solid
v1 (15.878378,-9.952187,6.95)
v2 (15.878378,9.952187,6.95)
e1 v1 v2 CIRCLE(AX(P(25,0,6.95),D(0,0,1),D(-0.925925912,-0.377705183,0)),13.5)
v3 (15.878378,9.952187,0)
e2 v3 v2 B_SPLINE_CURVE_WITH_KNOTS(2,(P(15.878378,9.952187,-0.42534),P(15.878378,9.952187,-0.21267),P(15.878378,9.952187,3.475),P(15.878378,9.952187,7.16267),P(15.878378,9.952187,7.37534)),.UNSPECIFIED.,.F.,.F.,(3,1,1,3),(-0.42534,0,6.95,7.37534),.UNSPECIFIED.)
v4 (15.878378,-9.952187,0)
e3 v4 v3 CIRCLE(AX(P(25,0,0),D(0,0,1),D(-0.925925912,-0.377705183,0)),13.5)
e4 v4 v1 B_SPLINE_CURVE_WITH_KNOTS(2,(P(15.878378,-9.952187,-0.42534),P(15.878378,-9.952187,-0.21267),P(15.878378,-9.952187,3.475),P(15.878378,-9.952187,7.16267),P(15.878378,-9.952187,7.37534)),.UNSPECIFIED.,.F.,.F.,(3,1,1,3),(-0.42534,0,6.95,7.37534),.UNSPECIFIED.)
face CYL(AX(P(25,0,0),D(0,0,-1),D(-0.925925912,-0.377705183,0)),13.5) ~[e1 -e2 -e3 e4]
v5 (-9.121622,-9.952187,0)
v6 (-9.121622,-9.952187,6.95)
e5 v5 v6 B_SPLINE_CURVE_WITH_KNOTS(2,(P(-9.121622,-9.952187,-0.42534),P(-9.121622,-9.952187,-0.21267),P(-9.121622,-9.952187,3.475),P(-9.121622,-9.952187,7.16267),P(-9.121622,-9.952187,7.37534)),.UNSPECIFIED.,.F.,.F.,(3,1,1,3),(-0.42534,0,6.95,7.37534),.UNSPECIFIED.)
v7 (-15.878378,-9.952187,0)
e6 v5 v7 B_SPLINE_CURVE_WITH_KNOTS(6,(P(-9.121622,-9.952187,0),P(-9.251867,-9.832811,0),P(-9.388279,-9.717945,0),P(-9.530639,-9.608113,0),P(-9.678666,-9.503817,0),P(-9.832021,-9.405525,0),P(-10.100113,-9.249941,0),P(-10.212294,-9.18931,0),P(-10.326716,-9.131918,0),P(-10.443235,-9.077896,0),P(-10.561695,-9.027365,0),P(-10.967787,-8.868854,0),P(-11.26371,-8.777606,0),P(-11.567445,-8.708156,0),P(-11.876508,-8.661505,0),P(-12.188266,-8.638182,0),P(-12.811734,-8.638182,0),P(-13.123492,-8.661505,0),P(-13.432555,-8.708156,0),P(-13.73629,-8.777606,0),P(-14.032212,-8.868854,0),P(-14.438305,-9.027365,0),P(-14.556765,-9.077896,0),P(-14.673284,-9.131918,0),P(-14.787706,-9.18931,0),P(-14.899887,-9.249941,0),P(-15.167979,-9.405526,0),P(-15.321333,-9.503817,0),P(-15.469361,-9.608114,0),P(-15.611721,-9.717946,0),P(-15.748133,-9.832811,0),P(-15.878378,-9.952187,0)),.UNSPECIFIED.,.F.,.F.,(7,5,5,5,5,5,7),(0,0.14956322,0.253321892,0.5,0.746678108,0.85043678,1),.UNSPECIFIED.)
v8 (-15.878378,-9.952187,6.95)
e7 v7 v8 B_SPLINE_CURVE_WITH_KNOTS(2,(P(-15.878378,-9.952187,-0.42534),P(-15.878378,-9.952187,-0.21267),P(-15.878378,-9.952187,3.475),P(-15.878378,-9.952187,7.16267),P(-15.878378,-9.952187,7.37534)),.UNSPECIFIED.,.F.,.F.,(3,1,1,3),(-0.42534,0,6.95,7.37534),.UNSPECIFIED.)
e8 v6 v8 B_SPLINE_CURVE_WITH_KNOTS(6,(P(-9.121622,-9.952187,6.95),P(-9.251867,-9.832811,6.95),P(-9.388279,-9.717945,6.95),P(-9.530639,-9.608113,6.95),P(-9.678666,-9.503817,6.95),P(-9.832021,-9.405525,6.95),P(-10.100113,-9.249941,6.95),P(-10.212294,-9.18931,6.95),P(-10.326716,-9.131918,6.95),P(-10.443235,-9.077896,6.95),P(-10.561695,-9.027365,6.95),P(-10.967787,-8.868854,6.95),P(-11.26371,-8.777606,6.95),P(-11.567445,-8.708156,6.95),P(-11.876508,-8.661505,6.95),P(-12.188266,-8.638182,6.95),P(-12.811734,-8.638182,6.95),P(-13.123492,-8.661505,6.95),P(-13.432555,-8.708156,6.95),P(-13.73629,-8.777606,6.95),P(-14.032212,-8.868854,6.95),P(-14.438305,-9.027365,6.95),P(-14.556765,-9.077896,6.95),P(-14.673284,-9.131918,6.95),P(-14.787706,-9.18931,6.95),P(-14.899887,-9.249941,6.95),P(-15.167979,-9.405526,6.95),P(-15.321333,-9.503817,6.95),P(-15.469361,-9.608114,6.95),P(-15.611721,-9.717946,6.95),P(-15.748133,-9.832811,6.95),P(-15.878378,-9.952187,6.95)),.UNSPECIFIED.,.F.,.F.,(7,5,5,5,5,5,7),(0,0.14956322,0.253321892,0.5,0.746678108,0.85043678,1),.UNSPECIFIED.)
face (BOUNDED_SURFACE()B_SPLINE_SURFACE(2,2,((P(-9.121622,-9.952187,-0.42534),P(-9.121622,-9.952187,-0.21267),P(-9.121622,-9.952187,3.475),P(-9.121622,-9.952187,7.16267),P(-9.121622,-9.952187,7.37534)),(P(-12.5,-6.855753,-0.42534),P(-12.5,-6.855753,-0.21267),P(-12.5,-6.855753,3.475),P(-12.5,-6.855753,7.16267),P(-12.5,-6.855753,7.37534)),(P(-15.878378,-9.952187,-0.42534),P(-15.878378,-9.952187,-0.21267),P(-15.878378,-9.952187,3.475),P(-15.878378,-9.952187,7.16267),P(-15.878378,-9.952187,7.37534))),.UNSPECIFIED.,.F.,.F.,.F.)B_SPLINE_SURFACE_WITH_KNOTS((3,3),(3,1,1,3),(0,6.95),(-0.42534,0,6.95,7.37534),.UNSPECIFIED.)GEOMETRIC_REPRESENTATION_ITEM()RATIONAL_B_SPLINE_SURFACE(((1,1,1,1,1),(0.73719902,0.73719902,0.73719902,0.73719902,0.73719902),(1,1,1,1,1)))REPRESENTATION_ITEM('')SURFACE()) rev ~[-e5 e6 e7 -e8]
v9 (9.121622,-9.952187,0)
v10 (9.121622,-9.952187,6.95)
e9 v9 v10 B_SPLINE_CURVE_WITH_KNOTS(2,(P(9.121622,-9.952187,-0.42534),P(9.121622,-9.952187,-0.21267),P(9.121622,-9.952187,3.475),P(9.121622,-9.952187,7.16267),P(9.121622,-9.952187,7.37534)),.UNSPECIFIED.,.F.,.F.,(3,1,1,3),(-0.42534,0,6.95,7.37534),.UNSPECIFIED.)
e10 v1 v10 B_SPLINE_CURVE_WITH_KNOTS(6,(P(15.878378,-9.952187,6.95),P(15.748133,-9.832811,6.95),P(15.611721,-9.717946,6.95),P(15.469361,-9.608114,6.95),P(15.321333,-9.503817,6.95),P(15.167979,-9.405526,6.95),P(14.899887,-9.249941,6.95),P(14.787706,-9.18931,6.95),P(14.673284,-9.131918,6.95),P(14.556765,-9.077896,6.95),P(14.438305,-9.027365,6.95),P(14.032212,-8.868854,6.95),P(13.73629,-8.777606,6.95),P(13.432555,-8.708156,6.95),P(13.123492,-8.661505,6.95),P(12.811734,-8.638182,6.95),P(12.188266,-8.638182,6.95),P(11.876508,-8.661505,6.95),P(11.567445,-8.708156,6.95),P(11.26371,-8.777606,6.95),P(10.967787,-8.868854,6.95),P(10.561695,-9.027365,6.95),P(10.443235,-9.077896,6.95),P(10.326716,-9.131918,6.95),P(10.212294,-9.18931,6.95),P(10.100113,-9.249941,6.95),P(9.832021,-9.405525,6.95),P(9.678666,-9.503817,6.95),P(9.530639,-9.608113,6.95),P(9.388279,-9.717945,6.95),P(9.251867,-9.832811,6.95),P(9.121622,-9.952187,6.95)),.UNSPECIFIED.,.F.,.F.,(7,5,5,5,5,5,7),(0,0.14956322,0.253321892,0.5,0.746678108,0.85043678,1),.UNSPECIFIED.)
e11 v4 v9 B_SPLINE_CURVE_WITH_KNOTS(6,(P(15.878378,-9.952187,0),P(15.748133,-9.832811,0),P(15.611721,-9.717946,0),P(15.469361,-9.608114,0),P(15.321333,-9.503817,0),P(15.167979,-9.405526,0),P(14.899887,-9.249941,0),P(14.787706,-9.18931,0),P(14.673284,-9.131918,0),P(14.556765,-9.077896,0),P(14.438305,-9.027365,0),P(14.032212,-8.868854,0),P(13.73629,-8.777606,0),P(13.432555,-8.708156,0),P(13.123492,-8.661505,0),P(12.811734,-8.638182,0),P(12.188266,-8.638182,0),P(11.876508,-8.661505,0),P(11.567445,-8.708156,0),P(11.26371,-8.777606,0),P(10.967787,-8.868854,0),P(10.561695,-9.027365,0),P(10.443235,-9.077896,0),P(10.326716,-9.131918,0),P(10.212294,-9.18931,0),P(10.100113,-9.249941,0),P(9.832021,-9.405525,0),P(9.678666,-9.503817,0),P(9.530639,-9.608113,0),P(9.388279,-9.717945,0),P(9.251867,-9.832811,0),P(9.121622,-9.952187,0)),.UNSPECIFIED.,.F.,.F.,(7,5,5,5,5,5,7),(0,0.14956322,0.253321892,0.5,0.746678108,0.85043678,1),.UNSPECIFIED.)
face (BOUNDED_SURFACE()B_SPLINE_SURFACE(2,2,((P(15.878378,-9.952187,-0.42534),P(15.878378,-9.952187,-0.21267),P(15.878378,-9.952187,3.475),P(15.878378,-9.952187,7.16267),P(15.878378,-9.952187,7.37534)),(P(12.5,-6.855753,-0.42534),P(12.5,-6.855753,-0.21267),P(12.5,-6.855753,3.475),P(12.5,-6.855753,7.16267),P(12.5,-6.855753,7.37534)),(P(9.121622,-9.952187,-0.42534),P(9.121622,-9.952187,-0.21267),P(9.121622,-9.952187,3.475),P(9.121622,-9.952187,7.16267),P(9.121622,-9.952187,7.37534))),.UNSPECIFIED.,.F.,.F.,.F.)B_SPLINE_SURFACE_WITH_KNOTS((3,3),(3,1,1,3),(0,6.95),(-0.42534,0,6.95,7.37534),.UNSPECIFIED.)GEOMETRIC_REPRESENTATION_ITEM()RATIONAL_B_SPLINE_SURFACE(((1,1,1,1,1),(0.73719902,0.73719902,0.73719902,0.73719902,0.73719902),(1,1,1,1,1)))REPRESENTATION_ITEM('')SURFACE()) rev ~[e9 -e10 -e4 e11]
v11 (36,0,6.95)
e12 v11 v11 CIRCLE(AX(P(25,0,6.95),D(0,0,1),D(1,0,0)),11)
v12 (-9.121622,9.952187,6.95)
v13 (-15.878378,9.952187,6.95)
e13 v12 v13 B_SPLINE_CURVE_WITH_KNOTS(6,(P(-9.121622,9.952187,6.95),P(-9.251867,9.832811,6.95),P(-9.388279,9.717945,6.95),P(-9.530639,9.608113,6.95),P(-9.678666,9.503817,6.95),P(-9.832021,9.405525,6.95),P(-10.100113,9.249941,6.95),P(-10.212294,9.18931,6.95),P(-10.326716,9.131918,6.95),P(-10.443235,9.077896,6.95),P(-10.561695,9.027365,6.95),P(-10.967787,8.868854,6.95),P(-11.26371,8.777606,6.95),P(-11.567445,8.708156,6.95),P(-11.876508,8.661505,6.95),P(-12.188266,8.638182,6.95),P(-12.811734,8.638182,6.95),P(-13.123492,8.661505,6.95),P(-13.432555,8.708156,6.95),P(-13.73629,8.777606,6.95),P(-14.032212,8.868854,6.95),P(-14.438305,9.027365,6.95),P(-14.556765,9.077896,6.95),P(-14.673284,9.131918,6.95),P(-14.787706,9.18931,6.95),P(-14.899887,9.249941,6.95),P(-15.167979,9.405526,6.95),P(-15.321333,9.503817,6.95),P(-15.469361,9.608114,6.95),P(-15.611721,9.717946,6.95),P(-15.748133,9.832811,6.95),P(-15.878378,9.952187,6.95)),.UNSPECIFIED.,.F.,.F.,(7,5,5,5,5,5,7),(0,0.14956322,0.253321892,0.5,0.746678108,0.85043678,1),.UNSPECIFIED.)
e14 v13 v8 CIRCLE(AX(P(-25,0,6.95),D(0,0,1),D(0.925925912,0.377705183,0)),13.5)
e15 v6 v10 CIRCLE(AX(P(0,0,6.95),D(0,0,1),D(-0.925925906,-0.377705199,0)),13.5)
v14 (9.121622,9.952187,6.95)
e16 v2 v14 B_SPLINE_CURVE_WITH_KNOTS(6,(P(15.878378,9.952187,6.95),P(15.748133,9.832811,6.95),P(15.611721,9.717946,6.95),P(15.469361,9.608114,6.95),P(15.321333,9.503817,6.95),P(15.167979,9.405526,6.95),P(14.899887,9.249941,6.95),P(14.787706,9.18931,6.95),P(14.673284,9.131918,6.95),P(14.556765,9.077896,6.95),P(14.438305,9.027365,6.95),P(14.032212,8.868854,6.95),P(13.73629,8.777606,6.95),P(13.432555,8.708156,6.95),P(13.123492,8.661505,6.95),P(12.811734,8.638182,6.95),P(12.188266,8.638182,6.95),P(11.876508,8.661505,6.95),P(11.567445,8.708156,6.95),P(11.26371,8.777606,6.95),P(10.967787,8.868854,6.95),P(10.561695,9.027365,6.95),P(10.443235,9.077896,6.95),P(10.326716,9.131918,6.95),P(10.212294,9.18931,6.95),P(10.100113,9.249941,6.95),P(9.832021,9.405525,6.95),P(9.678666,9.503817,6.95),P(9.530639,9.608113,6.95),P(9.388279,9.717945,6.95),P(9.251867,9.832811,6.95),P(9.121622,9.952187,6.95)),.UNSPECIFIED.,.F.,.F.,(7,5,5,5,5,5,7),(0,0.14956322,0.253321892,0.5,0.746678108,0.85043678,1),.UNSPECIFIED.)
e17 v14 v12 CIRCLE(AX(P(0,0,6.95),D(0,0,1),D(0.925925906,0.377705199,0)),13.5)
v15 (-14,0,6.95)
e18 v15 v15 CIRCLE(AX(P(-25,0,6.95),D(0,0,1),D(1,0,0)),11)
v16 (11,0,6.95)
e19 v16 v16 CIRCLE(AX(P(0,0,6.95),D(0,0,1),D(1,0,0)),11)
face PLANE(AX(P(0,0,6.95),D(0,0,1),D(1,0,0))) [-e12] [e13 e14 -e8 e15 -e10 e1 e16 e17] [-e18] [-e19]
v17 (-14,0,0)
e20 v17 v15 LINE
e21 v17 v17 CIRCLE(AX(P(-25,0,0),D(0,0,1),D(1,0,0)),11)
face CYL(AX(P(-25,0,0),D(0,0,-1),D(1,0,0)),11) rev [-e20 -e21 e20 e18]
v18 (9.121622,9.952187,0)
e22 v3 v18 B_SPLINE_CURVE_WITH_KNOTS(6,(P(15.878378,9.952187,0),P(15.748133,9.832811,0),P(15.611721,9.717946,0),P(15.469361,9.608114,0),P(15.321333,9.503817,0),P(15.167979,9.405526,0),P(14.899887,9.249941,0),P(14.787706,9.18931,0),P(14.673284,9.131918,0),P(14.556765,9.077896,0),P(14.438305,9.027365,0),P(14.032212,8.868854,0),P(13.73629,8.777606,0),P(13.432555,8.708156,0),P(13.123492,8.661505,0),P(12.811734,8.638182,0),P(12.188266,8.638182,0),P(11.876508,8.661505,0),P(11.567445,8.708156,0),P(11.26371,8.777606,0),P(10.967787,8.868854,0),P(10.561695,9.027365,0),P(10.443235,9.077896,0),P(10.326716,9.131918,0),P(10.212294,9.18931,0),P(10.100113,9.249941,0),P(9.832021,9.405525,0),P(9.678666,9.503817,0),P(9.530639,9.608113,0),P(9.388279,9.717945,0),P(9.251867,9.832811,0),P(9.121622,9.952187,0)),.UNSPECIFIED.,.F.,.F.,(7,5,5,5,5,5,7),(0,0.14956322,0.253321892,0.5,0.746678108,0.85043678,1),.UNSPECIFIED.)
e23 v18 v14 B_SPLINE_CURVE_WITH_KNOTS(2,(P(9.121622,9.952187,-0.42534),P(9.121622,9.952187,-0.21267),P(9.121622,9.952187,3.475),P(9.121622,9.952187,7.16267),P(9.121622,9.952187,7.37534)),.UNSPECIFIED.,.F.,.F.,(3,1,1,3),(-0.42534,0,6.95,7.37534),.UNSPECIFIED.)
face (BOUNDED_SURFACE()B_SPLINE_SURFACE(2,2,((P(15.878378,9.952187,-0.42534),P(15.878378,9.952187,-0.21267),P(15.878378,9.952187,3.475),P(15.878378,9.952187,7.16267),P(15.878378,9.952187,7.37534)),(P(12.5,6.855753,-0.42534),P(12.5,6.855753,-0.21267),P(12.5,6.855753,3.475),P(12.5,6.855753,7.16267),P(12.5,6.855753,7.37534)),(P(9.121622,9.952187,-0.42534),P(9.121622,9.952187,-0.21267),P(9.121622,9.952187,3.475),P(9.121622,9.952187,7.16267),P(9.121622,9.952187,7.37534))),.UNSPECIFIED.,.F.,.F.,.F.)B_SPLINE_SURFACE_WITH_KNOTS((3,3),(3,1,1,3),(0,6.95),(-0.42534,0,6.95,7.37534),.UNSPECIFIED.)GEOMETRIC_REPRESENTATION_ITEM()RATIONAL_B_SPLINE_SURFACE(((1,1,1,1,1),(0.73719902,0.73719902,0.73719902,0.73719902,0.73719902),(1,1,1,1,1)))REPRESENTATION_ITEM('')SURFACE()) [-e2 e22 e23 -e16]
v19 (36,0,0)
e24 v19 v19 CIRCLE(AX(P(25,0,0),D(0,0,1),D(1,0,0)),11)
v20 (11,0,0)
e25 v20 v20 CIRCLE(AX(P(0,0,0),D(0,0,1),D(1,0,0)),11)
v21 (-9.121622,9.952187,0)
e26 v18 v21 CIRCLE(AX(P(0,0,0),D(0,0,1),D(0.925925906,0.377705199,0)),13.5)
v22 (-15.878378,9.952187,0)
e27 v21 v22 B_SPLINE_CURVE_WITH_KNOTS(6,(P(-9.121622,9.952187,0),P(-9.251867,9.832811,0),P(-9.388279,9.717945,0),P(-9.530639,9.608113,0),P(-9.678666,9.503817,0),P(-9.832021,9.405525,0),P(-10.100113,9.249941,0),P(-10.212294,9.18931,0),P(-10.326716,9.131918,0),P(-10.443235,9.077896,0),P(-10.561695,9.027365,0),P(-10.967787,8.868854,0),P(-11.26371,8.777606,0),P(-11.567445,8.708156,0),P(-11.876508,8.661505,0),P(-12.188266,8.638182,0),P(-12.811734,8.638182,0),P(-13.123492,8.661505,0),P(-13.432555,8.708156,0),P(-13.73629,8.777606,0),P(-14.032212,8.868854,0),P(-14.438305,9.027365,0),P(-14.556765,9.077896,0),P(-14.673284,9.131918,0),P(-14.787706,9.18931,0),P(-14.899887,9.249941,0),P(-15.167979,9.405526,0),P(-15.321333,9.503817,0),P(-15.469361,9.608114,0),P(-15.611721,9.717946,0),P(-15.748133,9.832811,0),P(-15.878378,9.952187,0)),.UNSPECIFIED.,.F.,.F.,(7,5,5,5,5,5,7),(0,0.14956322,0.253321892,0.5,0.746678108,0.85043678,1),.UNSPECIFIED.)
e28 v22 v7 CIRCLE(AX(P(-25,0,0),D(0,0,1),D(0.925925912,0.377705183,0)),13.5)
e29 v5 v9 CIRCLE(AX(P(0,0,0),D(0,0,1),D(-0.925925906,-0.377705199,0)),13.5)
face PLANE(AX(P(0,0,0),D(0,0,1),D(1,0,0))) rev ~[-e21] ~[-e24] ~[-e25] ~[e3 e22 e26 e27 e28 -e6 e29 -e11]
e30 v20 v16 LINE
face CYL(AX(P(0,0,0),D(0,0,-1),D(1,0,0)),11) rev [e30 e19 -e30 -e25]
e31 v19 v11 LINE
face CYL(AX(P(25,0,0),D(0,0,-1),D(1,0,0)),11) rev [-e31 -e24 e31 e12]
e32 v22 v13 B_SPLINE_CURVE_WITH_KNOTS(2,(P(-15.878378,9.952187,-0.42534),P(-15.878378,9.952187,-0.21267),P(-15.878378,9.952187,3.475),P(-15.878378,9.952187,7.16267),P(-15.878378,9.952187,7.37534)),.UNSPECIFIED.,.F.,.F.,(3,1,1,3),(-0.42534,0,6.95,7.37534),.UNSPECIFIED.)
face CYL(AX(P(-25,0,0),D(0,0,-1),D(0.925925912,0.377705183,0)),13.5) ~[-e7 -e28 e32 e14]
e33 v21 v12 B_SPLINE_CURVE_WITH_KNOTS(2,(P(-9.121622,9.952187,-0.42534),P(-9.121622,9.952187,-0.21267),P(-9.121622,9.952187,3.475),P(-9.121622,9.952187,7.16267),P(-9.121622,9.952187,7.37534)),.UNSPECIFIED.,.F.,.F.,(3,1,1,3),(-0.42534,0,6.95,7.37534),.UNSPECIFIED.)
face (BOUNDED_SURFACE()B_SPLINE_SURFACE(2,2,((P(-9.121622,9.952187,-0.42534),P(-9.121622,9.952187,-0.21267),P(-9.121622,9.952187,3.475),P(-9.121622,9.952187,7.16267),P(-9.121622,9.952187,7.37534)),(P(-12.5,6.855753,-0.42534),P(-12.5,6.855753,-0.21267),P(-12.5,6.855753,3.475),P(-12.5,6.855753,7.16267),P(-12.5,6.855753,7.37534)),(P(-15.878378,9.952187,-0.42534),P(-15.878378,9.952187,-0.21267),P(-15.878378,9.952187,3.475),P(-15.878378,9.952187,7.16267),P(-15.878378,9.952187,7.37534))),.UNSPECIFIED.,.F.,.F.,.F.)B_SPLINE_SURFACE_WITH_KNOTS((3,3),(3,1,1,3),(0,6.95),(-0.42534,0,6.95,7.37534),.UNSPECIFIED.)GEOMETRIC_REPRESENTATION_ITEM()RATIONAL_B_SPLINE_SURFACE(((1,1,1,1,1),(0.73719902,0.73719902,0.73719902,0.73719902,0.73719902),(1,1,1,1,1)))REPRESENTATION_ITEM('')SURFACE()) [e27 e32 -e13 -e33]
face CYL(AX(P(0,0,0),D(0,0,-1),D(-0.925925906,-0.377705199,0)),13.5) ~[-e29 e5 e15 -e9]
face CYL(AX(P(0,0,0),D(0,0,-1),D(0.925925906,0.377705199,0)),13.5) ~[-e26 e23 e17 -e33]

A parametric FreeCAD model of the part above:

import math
import FreeCAD as App
import Part
import Sketcher
from FreeCAD import Vector


def edges_at(feature, points):
    """Names of the edges that pass closest to the given points."""
    edges = feature.Shape.Edges
    near = lambda p: min(range(len(edges)), key=lambda i: edges[i].distToShape(Part.Vertex(*p))[0])
    return sorted({f"Edge{near(p) + 1}" for p in points})

doc = App.newDocument("Part")
params = doc.addObject("Spreadsheet::Sheet", "Params")
for row, (alias, value) in enumerate([
    ("sketch1_diameter", "22 mm"),
    ("sketch1_radius", "13.5 mm"),
    ("pad1_length", "6.95 mm"),
    ("fillet_radius", "5 mm"),
], start=1):
    params.set(f"A{row}", alias)
    params.set(f"B{row}", "=" + value)
    params.setAlias(f"B{row}", alias)

body = doc.addObject("PartDesign::Body", "Body")

# Sketch on XY plane
sketch1 = body.newObject("Sketcher::SketchObject", "Sketch")
sketch1.AttachmentSupport = (doc.getObject("XY_Plane"), [""])
sketch1.MapMode = "FlatFace"
sketch1.addGeometry(Part.ArcOfCircle(Part.Circle(Vector(25, 0, 0), Vector(0, 0, 1), 14), math.radians(-158), math.radians(158)), False)
sketch1.addGeometry(Part.ArcOfCircle(Part.Circle(Vector(0, 0, 0), Vector(0, 0, 1), 14), math.radians(22), math.radians(158)), False)
sketch1.addGeometry(Part.ArcOfCircle(Part.Circle(Vector(-25, 0, 0), Vector(0, 0, 1), 14), math.radians(22), math.radians(338)), False)
sketch1.addGeometry(Part.ArcOfCircle(Part.Circle(Vector(0, 0, 0), Vector(0, 0, 1), 14), math.radians(-158), math.radians(-22)), False)
sketch1.addGeometry(Part.Circle(Vector(-25, 0, 0), Vector(0, 0, 1), 11), False)
sketch1.addGeometry(Part.Circle(Vector(0, 0, 0), Vector(0, 0, 1), 11), False)
sketch1.addGeometry(Part.Circle(Vector(25, 0, 0), Vector(0, 0, 1), 11), False)
sketch1.addConstraint(Sketcher.Constraint("Coincident", 0, 2, 1, 1))
sketch1.addConstraint(Sketcher.Constraint("Coincident", 1, 2, 2, 1))
sketch1.addConstraint(Sketcher.Constraint("Coincident", 2, 2, 3, 1))
sketch1.addConstraint(Sketcher.Constraint("Coincident", 3, 2, 0, 1))
sketch1.addConstraint(Sketcher.Constraint("Coincident", 1, 3, -1, 1))
sketch1.addConstraint(Sketcher.Constraint("Coincident", 3, 3, -1, 1))
sketch1.addConstraint(Sketcher.Constraint("Coincident", 5, 3, -1, 1))
sketch1.addConstraint(Sketcher.Constraint("Coincident", 4, 3, 2, 3))
sketch1.addConstraint(Sketcher.Constraint("Coincident", 6, 3, 0, 3))
sketch1.addConstraint(Sketcher.Constraint("Equal", 0, 1))
sketch1.addConstraint(Sketcher.Constraint("Equal", 1, 2))
sketch1.addConstraint(Sketcher.Constraint("Equal", 2, 3))
sketch1.addConstraint(Sketcher.Constraint("Equal", 4, 5))
sketch1.addConstraint(Sketcher.Constraint("Equal", 5, 6))
sketch1.addConstraint(Sketcher.Constraint("Symmetric", 0, 3, 2, 3, -1, 1))
sketch1.addConstraint(Sketcher.Constraint("PointOnObject", 0, 3, -1))
sketch1.addConstraint(Sketcher.Constraint("Diameter", 4, 22.0))
sketch1.addConstraint(Sketcher.Constraint("Radius", 0, 13.5))
sketch1.addConstraint(Sketcher.Constraint("DistanceX", -1, 1, 0, 3, 25.0))
sketch1.setExpression("Constraints[16]", "Params.sketch1_diameter")
sketch1.setExpression("Constraints[17]", "Params.sketch1_radius")
pad1 = body.newObject("PartDesign::Pad", "Pad")
pad1.Profile = sketch1
pad1.setExpression("Length", "Params.pad1_length")
doc.recompute()

fillet = body.newObject("PartDesign::Fillet", "Fillet")
fillet.Base = (pad1, edges_at(pad1, [
    (-12.5, -5.099, 3.475),
    (12.5, -5.099, 3.475),
    (12.5, 5.099, 3.475),
    (-12.5, 5.099, 3.475),
]))
fillet.setExpression("Radius", "Params.fillet_radius")

doc.recompute()
